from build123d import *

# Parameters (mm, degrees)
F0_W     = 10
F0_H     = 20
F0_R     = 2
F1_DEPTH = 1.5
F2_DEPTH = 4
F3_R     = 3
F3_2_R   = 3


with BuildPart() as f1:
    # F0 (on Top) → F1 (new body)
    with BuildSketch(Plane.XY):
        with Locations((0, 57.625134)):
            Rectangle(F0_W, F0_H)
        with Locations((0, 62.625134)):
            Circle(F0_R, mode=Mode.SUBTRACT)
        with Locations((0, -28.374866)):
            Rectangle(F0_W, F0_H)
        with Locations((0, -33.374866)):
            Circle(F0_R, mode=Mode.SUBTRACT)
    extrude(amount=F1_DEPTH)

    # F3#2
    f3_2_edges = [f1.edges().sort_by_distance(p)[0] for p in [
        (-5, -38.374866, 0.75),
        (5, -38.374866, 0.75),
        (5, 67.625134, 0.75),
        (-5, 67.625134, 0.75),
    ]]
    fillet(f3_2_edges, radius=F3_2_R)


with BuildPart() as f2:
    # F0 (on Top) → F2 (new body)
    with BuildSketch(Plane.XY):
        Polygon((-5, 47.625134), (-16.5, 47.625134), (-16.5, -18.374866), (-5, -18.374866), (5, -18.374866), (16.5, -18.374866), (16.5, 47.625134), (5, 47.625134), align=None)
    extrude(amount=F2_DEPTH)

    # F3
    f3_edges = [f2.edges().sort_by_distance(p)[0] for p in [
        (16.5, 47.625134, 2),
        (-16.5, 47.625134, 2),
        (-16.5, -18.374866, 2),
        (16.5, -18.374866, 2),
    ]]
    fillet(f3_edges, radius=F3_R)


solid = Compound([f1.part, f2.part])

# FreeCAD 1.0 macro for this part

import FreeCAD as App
import Part
import Sketcher

V = App.Vector


def edges_at(feature, points):
    """Names of the edges that pass closest to the given points."""
    edges = feature.Shape.Edges
    near = lambda p: min(range(len(edges)), key=lambda i: edges[i].distToShape(Part.Vertex(*p))[0])
    return sorted({f"Edge{near(p) + 1}" for p in points})

doc = App.newDocument("Part")
body = doc.addObject("PartDesign::Body", "Body")
body.AllowCompound = True

# Sketch on XY plane
sketch1 = body.newObject("Sketcher::SketchObject", "Sketch")
sketch1.AttachmentSupport = (doc.getObject("XY_Plane"), [""])
sketch1.MapMode = "FlatFace"
sketch1.addGeometry([
    Part.LineSegment(V(-5, 67.6, 0), V(-5, 47.6, 0)),  # 0
    Part.LineSegment(V(-5, 47.6, 0), V(5, 47.6, 0)),  # 1
    Part.LineSegment(V(5, 47.6, 0), V(5, 67.6, 0)),  # 2
    Part.LineSegment(V(5, 67.6, 0), V(-5, 67.6, 0)),  # 3
    Part.Circle(V(0, 62.6, 0), V(0, 0, 1), 2),  # 4
    Part.LineSegment(V(-5, -18.4, 0), V(-5, -38.4, 0)),  # 5
    Part.LineSegment(V(-5, -38.4, 0), V(5, -38.4, 0)),  # 6
    Part.LineSegment(V(5, -38.4, 0), V(5, -18.4, 0)),  # 7
    Part.LineSegment(V(5, -18.4, 0), V(-5, -18.4, 0)),  # 8
    Part.Circle(V(0, -33.4, 0), V(0, 0, 1), 2),  # 9
], False)
sketch1.addConstraint([
    Sketcher.Constraint("Coincident", 0, 2, 1, 1),
    Sketcher.Constraint("Coincident", 1, 2, 2, 1),
    Sketcher.Constraint("Coincident", 2, 2, 3, 1),
    Sketcher.Constraint("Coincident", 3, 2, 0, 1),
    Sketcher.Constraint("Coincident", 5, 2, 6, 1),
    Sketcher.Constraint("Coincident", 6, 2, 7, 1),
    Sketcher.Constraint("Coincident", 7, 2, 8, 1),
    Sketcher.Constraint("Coincident", 8, 2, 5, 1),
    Sketcher.Constraint("Vertical", 0),
    Sketcher.Constraint("Horizontal", 1),
    Sketcher.Constraint("Vertical", 2),
    Sketcher.Constraint("Horizontal", 3),
    Sketcher.Constraint("Vertical", 5),
    Sketcher.Constraint("Horizontal", 6),
    Sketcher.Constraint("Vertical", 7),
    Sketcher.Constraint("Horizontal", 8),
    Sketcher.Constraint("Equal", 4, 9),
    Sketcher.Constraint("PointOnObject", 4, 3, -2),
    Sketcher.Constraint("PointOnObject", 9, 3, -2),
    Sketcher.Constraint("Vertical", 3, 2, 5, 2),
    Sketcher.Constraint("Vertical", 2, 2, 6, 2),
    Sketcher.Constraint("Equal", 2, 5),
    Sketcher.Constraint("Diameter", 4, 4.0),
    Sketcher.Constraint("DistanceX", 1, 1, 1, 2, 10.0),
    Sketcher.Constraint("DistanceY", 0, 2, 0, 1, 20.0),
    Sketcher.Constraint("DistanceX", 0, 2, -1, 1, 5.0),
    Sketcher.Constraint("DistanceY", 9, 3, 4, 3, 96.0),
    Sketcher.Constraint("DistanceY", 0, 2, 4, 3, 15.0),
    Sketcher.Constraint("DistanceY", 5, 2, 9, 3, 5.0),
    Sketcher.Constraint("DistanceY", -1, 1, 4, 3, 62.625134),
])
pad1 = body.newObject("PartDesign::Pad", "Pad")
pad1.Profile = sketch1
pad1.Length = 1.5
doc.recompute()

fillet = body.newObject("PartDesign::Fillet", "Fillet")
fillet.Base = (pad1, edges_at(pad1, [
    (-5, -38.375, 0.75),
    (5, -38.375, 0.75),
    (5, 67.625, 0.75),
    (-5, 67.625, 0.75),
]))
fillet.Radius = 3
body2 = doc.addObject("PartDesign::Body", "Body001")

# Sketch on XY plane
sketch2 = body2.newObject("Sketcher::SketchObject", "Sketch001")
sketch2.AttachmentSupport = (doc.getObject("XY_Plane001"), [""])
sketch2.MapMode = "FlatFace"
sketch2.addGeometry([
    Part.LineSegment(V(-16, 48, 0), V(-16, -18, 0)),
    Part.LineSegment(V(-16, -18, 0), V(16, -18, 0)),
    Part.LineSegment(V(16, -18, 0), V(16, 48, 0)),
    Part.LineSegment(V(16, 48, 0), V(-16, 48, 0)),
], False)
sketch2.addConstraint([
    Sketcher.Constraint("Coincident", 0, 2, 1, 1),
    Sketcher.Constraint("Coincident", 1, 2, 2, 1),
    Sketcher.Constraint("Coincident", 2, 2, 3, 1),
    Sketcher.Constraint("Coincident", 3, 2, 0, 1),
    Sketcher.Constraint("Vertical", 0),
    Sketcher.Constraint("Horizontal", 1),
    Sketcher.Constraint("Vertical", 2),
    Sketcher.Constraint("Horizontal", 3),
    Sketcher.Constraint("DistanceX", 1, 1, 1, 2, 33.0),
    Sketcher.Constraint("DistanceY", 0, 2, 0, 1, 66.0),
    Sketcher.Constraint("DistanceX", 0, 2, -1, 1, 16.5),
    Sketcher.Constraint("DistanceY", 0, 2, -1, 1, 18.374866),
])
pad2 = body2.newObject("PartDesign::Pad", "Pad001")
pad2.Profile = sketch2
pad2.Length = 4
doc.recompute()

fillet2 = body2.newObject("PartDesign::Fillet", "Fillet001")
fillet2.Base = (pad2, edges_at(pad2, [
    (16.5, 47.625, 2),
    (-16.5, 47.625, 2),
    (-16.5, -18.375, 2),
    (16.5, -18.375, 2),
]))
fillet2.Radius = 3

doc.recompute()
